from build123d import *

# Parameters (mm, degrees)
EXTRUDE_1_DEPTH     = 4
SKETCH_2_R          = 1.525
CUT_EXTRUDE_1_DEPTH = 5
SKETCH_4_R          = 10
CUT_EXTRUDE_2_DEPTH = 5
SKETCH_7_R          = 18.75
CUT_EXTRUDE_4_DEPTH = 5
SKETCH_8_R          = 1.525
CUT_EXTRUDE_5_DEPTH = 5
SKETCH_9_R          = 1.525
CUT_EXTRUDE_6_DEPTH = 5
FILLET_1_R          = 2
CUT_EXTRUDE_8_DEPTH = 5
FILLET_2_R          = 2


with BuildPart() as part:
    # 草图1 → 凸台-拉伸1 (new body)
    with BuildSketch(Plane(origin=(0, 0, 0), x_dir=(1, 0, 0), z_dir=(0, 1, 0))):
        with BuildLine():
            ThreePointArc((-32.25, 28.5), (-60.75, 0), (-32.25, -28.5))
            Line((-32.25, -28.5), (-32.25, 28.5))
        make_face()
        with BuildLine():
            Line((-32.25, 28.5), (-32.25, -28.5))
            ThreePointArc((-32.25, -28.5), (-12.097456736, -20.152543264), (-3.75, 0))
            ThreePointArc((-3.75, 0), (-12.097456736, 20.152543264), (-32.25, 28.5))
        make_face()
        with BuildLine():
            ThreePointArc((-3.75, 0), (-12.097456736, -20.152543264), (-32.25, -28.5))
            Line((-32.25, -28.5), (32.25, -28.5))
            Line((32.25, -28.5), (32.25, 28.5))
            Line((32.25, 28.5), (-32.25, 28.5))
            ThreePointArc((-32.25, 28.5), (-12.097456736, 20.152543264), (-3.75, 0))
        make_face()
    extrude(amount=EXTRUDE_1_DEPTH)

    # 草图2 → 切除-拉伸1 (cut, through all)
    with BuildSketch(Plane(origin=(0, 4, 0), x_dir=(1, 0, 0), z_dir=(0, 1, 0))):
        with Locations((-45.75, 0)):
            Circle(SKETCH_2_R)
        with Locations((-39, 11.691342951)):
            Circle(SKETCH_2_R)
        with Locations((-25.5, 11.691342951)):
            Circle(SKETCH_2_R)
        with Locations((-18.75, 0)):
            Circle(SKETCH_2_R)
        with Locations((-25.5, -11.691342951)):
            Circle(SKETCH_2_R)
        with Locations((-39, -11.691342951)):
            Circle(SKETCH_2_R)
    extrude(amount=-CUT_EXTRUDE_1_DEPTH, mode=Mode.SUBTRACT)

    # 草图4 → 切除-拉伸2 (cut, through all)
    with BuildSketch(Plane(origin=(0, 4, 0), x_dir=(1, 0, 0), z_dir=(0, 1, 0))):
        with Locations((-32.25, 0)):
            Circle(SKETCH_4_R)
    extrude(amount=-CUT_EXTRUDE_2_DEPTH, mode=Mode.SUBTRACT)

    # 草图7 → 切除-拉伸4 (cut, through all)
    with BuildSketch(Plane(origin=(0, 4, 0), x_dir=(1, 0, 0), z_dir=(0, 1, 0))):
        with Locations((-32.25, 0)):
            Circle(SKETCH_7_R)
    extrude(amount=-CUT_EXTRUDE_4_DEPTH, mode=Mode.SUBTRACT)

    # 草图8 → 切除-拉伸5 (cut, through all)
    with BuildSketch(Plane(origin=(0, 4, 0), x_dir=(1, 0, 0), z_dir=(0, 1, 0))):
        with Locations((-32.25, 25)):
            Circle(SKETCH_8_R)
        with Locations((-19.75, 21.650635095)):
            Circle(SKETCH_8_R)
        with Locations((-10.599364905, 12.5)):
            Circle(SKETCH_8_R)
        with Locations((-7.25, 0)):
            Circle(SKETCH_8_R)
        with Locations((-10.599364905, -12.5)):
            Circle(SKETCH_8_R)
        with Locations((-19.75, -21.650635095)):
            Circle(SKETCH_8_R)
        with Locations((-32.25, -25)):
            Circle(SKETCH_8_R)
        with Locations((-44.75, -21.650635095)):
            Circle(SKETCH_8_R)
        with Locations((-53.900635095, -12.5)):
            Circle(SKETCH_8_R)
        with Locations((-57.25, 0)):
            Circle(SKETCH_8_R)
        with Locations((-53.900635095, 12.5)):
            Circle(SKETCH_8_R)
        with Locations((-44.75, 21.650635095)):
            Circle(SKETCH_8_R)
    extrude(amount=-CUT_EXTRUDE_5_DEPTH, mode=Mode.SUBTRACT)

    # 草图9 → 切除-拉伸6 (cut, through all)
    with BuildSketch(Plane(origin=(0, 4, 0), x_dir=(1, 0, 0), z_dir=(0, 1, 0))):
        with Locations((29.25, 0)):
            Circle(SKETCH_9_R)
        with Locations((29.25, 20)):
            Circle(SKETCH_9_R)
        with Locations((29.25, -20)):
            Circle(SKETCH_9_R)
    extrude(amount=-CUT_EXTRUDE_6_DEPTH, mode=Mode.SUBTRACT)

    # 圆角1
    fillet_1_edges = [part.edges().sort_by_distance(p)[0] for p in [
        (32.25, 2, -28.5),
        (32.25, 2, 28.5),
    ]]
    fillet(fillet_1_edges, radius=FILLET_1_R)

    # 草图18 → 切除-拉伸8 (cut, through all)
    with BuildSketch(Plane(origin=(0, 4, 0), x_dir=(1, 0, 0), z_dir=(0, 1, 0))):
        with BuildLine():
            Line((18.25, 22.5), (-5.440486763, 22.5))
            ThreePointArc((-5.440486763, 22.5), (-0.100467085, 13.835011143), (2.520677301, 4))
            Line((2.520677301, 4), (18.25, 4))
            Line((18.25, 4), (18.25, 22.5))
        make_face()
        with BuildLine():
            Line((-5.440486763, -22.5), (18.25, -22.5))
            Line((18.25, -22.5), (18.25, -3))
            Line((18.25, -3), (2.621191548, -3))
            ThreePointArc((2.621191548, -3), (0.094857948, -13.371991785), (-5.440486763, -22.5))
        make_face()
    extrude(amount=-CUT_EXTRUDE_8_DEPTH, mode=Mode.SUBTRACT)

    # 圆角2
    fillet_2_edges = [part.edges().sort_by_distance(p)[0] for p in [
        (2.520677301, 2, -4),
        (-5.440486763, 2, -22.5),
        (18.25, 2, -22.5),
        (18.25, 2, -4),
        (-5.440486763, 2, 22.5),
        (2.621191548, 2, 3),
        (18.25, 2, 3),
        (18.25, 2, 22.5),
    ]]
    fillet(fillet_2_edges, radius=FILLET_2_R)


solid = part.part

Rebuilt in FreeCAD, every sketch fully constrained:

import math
import FreeCAD as App
import Part
import Sketcher
from FreeCAD import Vector


def edges_at(feature, points):
    """Names of the edges that pass closest to the given points."""
    edges = feature.Shape.Edges
    near = lambda p: min(range(len(edges)), key=lambda i: edges[i].distToShape(Part.Vertex(*p))[0])
    return sorted({f"Edge{near(p) + 1}" for p in points})

doc = App.newDocument("Part")
body = doc.addObject("PartDesign::Body", "Body")

sketch1 = body.newObject("Sketcher::SketchObject", "Sketch")
sketch1.AttachmentSupport = (doc.getObject("XZ_Plane"), [""])
sketch1.MapMode = "FlatFace"
sketch1.addGeometry([
    Part.ArcOfCircle(Part.Circle(Vector(-32, 0, 0), Vector(0, 0, 1), 28), math.radians(90), math.radians(270)),
    Part.LineSegment(Vector(-32, 28, 0), Vector(32, 28, 0)),
    Part.LineSegment(Vector(32, 28, 0), Vector(32, -28, 0)),
    Part.LineSegment(Vector(32, -28, 0), Vector(-32, -28, 0)),
], False)
sketch1.addConstraint([
    Sketcher.Constraint("Tangent", 0, 1, 1, 1),
    Sketcher.Constraint("Coincident", 1, 2, 2, 1),
    Sketcher.Constraint("Coincident", 2, 2, 3, 1),
    Sketcher.Constraint("Tangent", 3, 2, 0, 2),
    Sketcher.Constraint("Horizontal", 1),
    Sketcher.Constraint("Vertical", 2),
    Sketcher.Constraint("Horizontal", 3),
    Sketcher.Constraint("Symmetric", 0, 1, 2, 2, -1, 1),
    Sketcher.Constraint("Radius", 0, 28.5),
    Sketcher.Constraint("DistanceX", 1, 1, 1, 2, 64.5),
])
pad1 = body.newObject("PartDesign::Pad", "Pad")
pad1.Profile = sketch1
pad1.Length = 4
pad1.Reversed = True

sketch2 = body.newObject("Sketcher::SketchObject", "Sketch001")
sketch2.AttachmentSupport = (doc.getObject("XZ_Plane"), [""])
sketch2.MapMode = "FlatFace"
sketch2.AttachmentOffset = App.Placement(Vector(0, 0, -4), App.Rotation())
sketch2.addGeometry([
    Part.Circle(Vector(-45.8, 0, 0), Vector(0, 0, 1), 1.5),
    Part.Circle(Vector(-39, -11.7, 0), Vector(0, 0, 1), 1.5),
    Part.Circle(Vector(-25.5, -11.7, 0), Vector(0, 0, 1), 1.5),
    Part.Circle(Vector(-18.8, 0, 0), Vector(0, 0, 1), 1.5),
    Part.Circle(Vector(-25.5, 11.7, 0), Vector(0, 0, 1), 1.5),
    Part.Circle(Vector(-39, 11.7, 0), Vector(0, 0, 1), 1.5),
], False)
sketch2.addConstraint([
    Sketcher.Constraint("Equal", 0, 1),
    Sketcher.Constraint("Equal", 1, 2),
    Sketcher.Constraint("Equal", 2, 3),
    Sketcher.Constraint("Equal", 3, 4),
    Sketcher.Constraint("Equal", 4, 5),
    Sketcher.Constraint("Symmetric", 2, 3, 4, 3, -1),
    Sketcher.Constraint("Symmetric", 1, 3, 5, 3, -1),
    Sketcher.Constraint("PointOnObject", 0, 3, -1),
    Sketcher.Constraint("PointOnObject", 3, 3, -1),
    Sketcher.Constraint("Horizontal", 1, 3, 2, 3),
    Sketcher.Constraint("Diameter", 0, 3.05),
    Sketcher.Constraint("DistanceX", 1, 3, -1, 1, 39.0),
    Sketcher.Constraint("DistanceX", 0, 3, 3, 3, 27.0),
    Sketcher.Constraint("DistanceX", 2, 3, -1, 1, 25.5),
    Sketcher.Constraint("DistanceX", 0, 3, -1, 1, 45.75),
    Sketcher.Constraint("DistanceY", 1, 3, -1, 1, 11.691343),
])
pocket1 = body.newObject("PartDesign::Pocket", "Pocket")
pocket1.Profile = sketch2
pocket1.Type = "ThroughAll"
pocket1.Reversed = True

sketch3 = body.newObject("Sketcher::SketchObject", "Sketch002")
sketch3.AttachmentSupport = (doc.getObject("XZ_Plane"), [""])
sketch3.MapMode = "FlatFace"
sketch3.AttachmentOffset = App.Placement(Vector(0, 0, -4), App.Rotation())
sketch3.addGeometry(Part.Circle(Vector(-32, 0, 0), Vector(0, 0, 1), 10), False)
sketch3.addConstraint([
    Sketcher.Constraint("PointOnObject", 0, 3, -1),
    Sketcher.Constraint("Diameter", 0, 20.0),
    Sketcher.Constraint("DistanceX", 0, 3, -1, 1, 32.25),
])
pocket2 = body.newObject("PartDesign::Pocket", "Pocket001")
pocket2.Profile = sketch3
pocket2.Type = "ThroughAll"
pocket2.Reversed = True

sketch4 = body.newObject("Sketcher::SketchObject", "Sketch003")
sketch4.AttachmentSupport = (doc.getObject("XZ_Plane"), [""])
sketch4.MapMode = "FlatFace"
sketch4.AttachmentOffset = App.Placement(Vector(0, 0, -4), App.Rotation())
sketch4.addGeometry(Part.Circle(Vector(-32, 0, 0), Vector(0, 0, 1), 19), False)
sketch4.addConstraint([
    Sketcher.Constraint("PointOnObject", 0, 3, -1),
    Sketcher.Constraint("Diameter", 0, 37.5),
    Sketcher.Constraint("DistanceX", 0, 3, -1, 1, 32.25),
])
pocket3 = body.newObject("PartDesign::Pocket", "Pocket002")
pocket3.Profile = sketch4
pocket3.Type = "ThroughAll"
pocket3.Reversed = True

sketch5 = body.newObject("Sketcher::SketchObject", "Sketch004")
sketch5.AttachmentSupport = (doc.getObject("XZ_Plane"), [""])
sketch5.MapMode = "FlatFace"
sketch5.AttachmentOffset = App.Placement(Vector(0, 0, -4), App.Rotation())
sketch5.addGeometry([
    Part.Circle(Vector(-32.2, -25, 0), Vector(0, 0, 1), 1.5),
    Part.Circle(Vector(-19.8, -21.7, 0), Vector(0, 0, 1), 1.5),
    Part.Circle(Vector(-10.6, -12.5, 0), Vector(0, 0, 1), 1.5),
    Part.Circle(Vector(-7.2, 0, 0), Vector(0, 0, 1), 1.5),
    Part.Circle(Vector(-10.6, 12.5, 0), Vector(0, 0, 1), 1.5),
    Part.Circle(Vector(-19.8, 21.7, 0), Vector(0, 0, 1), 1.5),
    Part.Circle(Vector(-32.2, 25, 0), Vector(0, 0, 1), 1.5),
    Part.Circle(Vector(-44.8, 21.7, 0), Vector(0, 0, 1), 1.5),
    Part.Circle(Vector(-53.9, 12.5, 0), Vector(0, 0, 1), 1.5),
    Part.Circle(Vector(-57.2, 0, 0), Vector(0, 0, 1), 1.5),
    Part.Circle(Vector(-53.9, -12.5, 0), Vector(0, 0, 1), 1.5),
    Part.Circle(Vector(-44.8, -21.7, 0), Vector(0, 0, 1), 1.5),
], False)
sketch5.addConstraint([
    Sketcher.Constraint("Equal", 0, 1),
    Sketcher.Constraint("Equal", 1, 2),
    Sketcher.Constraint("Equal", 2, 3),
    Sketcher.Constraint("Equal", 3, 4),
    Sketcher.Constraint("Equal", 4, 5),
    Sketcher.Constraint("Equal", 5, 6),
    Sketcher.Constraint("Equal", 6, 7),
    Sketcher.Constraint("Equal", 7, 8),
    Sketcher.Constraint("Equal", 8, 9),
    Sketcher.Constraint("Equal", 9, 10),
    Sketcher.Constraint("Equal", 10, 11),
    Sketcher.Constraint("Symmetric", 2, 3, 4, 3, -1),
    Sketcher.Constraint("Symmetric", 1, 3, 5, 3, -1),
    Sketcher.Constraint("Symmetric", 0, 3, 6, 3, -1),
    Sketcher.Constraint("Symmetric", 8, 3, 10, 3, -1),
    Sketcher.Constraint("Symmetric", 7, 3, 11, 3, -1),
    Sketcher.Constraint("PointOnObject", 3, 3, -1),
    Sketcher.Constraint("PointOnObject", 9, 3, -1),
    Sketcher.Constraint("Horizontal", 5, 3, 7, 3),
    Sketcher.Constraint("Horizontal", 4, 3, 8, 3),
    Sketcher.Constraint("Diameter", 0, 3.05),
    Sketcher.Constraint("DistanceY", 0, 3, -1, 1, 25.0),
    Sketcher.Constraint("DistanceX", 0, 3, 3, 3, 25.0),
    Sketcher.Constraint("DistanceY", 2, 3, 4, 3, 25.0),
    Sketcher.Constraint("DistanceX", 7, 3, 5, 3, 25.0),
    Sketcher.Constraint("DistanceX", 9, 3, 0, 3, 25.0),
    Sketcher.Constraint("DistanceX", 0, 3, 1, 3, 12.5),
    Sketcher.Constraint("DistanceX", 0, 3, -1, 1, 32.25),
    Sketcher.Constraint("DistanceY", 1, 3, 5, 3, 43.30127),
    Sketcher.Constraint("DistanceX", 8, 3, 4, 3, 43.30127),
    Sketcher.Constraint("DistanceX", 2, 3, -1, 1, 10.599365),
])
pocket4 = body.newObject("PartDesign::Pocket", "Pocket003")
pocket4.Profile = sketch5
pocket4.Type = "ThroughAll"
pocket4.Reversed = True

sketch6 = body.newObject("Sketcher::SketchObject", "Sketch005")
sketch6.AttachmentSupport = (doc.getObject("XZ_Plane"), [""])
sketch6.MapMode = "FlatFace"
sketch6.AttachmentOffset = App.Placement(Vector(0, 0, -4), App.Rotation())
sketch6.addGeometry([
    Part.Circle(Vector(29.2, 0, 0), Vector(0, 0, 1), 1.5),
    Part.Circle(Vector(29.2, -20, 0), Vector(0, 0, 1), 1.5),
    Part.Circle(Vector(29.2, 20, 0), Vector(0, 0, 1), 1.5),
], False)
sketch6.addConstraint([
    Sketcher.Constraint("Equal", 0, 1),
    Sketcher.Constraint("Equal", 1, 2),
    Sketcher.Constraint("Symmetric", 1, 3, 2, 3, -1),
    Sketcher.Constraint("PointOnObject", 0, 3, -1),
    Sketcher.Constraint("Vertical", 0, 3, 1, 3),
    Sketcher.Constraint("Diameter", 0, 3.05),
    Sketcher.Constraint("DistanceY", 1, 3, -1, 1, 20.0),
    Sketcher.Constraint("DistanceX", -1, 1, 0, 3, 29.25),
])
pocket5 = body.newObject("PartDesign::Pocket", "Pocket004")
pocket5.Profile = sketch6
pocket5.Type = "ThroughAll"
pocket5.Reversed = True
doc.recompute()

fillet = body.newObject("PartDesign::Fillet", "Fillet")
fillet.Base = (pocket5, edges_at(pocket5, [(32.25, 2, -28.5), (32.25, 2, 28.5)]))
fillet.Radius = 2

sketch7 = body.newObject("Sketcher::SketchObject", "Sketch006")
sketch7.AttachmentSupport = (doc.getObject("XZ_Plane"), [""])
sketch7.MapMode = "FlatFace"
sketch7.AttachmentOffset = App.Placement(Vector(0, 0, -4), App.Rotation())
sketch7.addGeometry([
    Part.LineSegment(Vector(18, -22, 0), Vector(-5, -22, 0)),
    Part.ArcOfCircle(Part.Circle(Vector(-32, 0, 0), Vector(0, 0, 1), 35), math.radians(-40), math.radians(-7)),
    Part.LineSegment(Vector(3, -4, 0), Vector(18, -4, 0)),
    Part.LineSegment(Vector(18, -4, 0), Vector(18, -22, 0)),
    Part.LineSegment(Vector(-5, 22, 0), Vector(18, 22, 0)),
    Part.LineSegment(Vector(18, 22, 0), Vector(18, 3, 0)),
    Part.LineSegment(Vector(18, 3, 0), Vector(3, 3, 0)),
    Part.ArcOfCircle(Part.Circle(Vector(-32, 0, 0), Vector(0, 0, 1), 35), math.radians(5), math.radians(40)),
], False)
sketch7.addConstraint([
    Sketcher.Constraint("Coincident", 0, 2, 1, 1),
    Sketcher.Constraint("Coincident", 1, 2, 2, 1),
    Sketcher.Constraint("Coincident", 2, 2, 3, 1),
    Sketcher.Constraint("Coincident", 3, 2, 0, 1),
    Sketcher.Constraint("Coincident", 4, 2, 5, 1),
    Sketcher.Constraint("Coincident", 5, 2, 6, 1),
    Sketcher.Constraint("Coincident", 6, 2, 7, 1),
    Sketcher.Constraint("Coincident", 7, 2, 4, 1),
    Sketcher.Constraint("Horizontal", 0),
    Sketcher.Constraint("Horizontal", 2),
    Sketcher.Constraint("Vertical", 3),
    Sketcher.Constraint("Horizontal", 4),
    Sketcher.Constraint("Vertical", 5),
    Sketcher.Constraint("Horizontal", 6),
    Sketcher.Constraint("Coincident", 7, 3, 1, 3),
    Sketcher.Constraint("Equal", 1, 7),
    Sketcher.Constraint("Symmetric", 3, 2, 4, 2, -1),
    Sketcher.Constraint("PointOnObject", 1, 3, -1),
    Sketcher.Constraint("Radius", 1, 35.0),
    Sketcher.Constraint("DistanceY", 3, 2, 3, 1, 18.5),
    Sketcher.Constraint("DistanceY", 5, 2, 5, 1, 19.5),
    Sketcher.Constraint("DistanceY", 1, 2, -1, 1, 4.0),
    Sketcher.Constraint("DistanceX", 1, 3, 2, 2, 50.5),
    Sketcher.Constraint("DistanceX", 1, 3, -1, 1, 32.25),
])
pocket6 = body.newObject("PartDesign::Pocket", "Pocket005")
pocket6.Profile = sketch7
pocket6.Type = "ThroughAll"
pocket6.Reversed = True
doc.recompute()

fillet2 = body.newObject("PartDesign::Fillet", "Fillet001")
fillet2.Base = (pocket6, edges_at(pocket6, [
    (2.521, 2, -4),
    (-5.44, 2, -22.5),
    (18.25, 2, -22.5),
    (18.25, 2, -4),
    (-5.44, 2, 22.5),
    (2.621, 2, 3),
    (18.25, 2, 3),
    (18.25, 2, 22.5),
]))
fillet2.Radius = 2

doc.recompute()
